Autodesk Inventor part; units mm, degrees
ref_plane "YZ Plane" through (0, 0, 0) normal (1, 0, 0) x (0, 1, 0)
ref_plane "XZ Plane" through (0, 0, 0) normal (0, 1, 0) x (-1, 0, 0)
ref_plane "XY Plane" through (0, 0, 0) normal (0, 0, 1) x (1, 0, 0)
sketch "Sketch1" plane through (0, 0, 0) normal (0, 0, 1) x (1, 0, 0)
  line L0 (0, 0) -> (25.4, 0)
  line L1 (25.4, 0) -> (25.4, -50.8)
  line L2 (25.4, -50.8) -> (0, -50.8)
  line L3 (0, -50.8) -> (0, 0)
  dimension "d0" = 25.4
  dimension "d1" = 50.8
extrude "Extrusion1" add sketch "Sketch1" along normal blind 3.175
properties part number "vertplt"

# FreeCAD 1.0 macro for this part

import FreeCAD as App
import Part
import Sketcher
Q = App.Units.Quantity


def add_polygon(sketch, points):
    """Adds a closed chain of lines whose ends are joined by coincident constraints."""
    first, n = sketch.GeometryCount, len(points)
    for a, b in zip(points, points[1:] + points[:1]):
        sketch.addGeometry(Part.LineSegment(App.Vector(*a, 0), App.Vector(*b, 0)), False)
    for i in range(n):
        sketch.addConstraint(Sketcher.Constraint("Coincident", first + i, 2, first + (i + 1) % n, 1))

doc = App.newDocument("Part")
body = doc.addObject("PartDesign::Body", "Body")

# Sketch on XY plane
sketch1 = body.newObject("Sketcher::SketchObject", "Sketch")
sketch1.AttachmentSupport = (doc.getObject("XY_Plane"), [""])
sketch1.MapMode = "FlatFace"
add_polygon(sketch1, [(25.4, 0), (0, 0), (0, -50.8), (25.4, -50.8)])  # lines 0-3
sketch1.addConstraint([
    Sketcher.Constraint("Horizontal", 0),
    Sketcher.Constraint("Vertical", 1),
    Sketcher.Constraint("Horizontal", 2),
    Sketcher.Constraint("Vertical", 3),
    Sketcher.Constraint("Coincident", 0, 2, -1, 1),
    Sketcher.Constraint("DistanceX", 0, 2, 0, 1, Q("1 in")),
    Sketcher.Constraint("DistanceY", 1, 2, 1, 1, Q("2 in")),
])
pad1 = body.newObject("PartDesign::Pad", "Pad")
pad1.Profile = sketch1
pad1.Length = Q("0.125 in")

doc.recompute()
